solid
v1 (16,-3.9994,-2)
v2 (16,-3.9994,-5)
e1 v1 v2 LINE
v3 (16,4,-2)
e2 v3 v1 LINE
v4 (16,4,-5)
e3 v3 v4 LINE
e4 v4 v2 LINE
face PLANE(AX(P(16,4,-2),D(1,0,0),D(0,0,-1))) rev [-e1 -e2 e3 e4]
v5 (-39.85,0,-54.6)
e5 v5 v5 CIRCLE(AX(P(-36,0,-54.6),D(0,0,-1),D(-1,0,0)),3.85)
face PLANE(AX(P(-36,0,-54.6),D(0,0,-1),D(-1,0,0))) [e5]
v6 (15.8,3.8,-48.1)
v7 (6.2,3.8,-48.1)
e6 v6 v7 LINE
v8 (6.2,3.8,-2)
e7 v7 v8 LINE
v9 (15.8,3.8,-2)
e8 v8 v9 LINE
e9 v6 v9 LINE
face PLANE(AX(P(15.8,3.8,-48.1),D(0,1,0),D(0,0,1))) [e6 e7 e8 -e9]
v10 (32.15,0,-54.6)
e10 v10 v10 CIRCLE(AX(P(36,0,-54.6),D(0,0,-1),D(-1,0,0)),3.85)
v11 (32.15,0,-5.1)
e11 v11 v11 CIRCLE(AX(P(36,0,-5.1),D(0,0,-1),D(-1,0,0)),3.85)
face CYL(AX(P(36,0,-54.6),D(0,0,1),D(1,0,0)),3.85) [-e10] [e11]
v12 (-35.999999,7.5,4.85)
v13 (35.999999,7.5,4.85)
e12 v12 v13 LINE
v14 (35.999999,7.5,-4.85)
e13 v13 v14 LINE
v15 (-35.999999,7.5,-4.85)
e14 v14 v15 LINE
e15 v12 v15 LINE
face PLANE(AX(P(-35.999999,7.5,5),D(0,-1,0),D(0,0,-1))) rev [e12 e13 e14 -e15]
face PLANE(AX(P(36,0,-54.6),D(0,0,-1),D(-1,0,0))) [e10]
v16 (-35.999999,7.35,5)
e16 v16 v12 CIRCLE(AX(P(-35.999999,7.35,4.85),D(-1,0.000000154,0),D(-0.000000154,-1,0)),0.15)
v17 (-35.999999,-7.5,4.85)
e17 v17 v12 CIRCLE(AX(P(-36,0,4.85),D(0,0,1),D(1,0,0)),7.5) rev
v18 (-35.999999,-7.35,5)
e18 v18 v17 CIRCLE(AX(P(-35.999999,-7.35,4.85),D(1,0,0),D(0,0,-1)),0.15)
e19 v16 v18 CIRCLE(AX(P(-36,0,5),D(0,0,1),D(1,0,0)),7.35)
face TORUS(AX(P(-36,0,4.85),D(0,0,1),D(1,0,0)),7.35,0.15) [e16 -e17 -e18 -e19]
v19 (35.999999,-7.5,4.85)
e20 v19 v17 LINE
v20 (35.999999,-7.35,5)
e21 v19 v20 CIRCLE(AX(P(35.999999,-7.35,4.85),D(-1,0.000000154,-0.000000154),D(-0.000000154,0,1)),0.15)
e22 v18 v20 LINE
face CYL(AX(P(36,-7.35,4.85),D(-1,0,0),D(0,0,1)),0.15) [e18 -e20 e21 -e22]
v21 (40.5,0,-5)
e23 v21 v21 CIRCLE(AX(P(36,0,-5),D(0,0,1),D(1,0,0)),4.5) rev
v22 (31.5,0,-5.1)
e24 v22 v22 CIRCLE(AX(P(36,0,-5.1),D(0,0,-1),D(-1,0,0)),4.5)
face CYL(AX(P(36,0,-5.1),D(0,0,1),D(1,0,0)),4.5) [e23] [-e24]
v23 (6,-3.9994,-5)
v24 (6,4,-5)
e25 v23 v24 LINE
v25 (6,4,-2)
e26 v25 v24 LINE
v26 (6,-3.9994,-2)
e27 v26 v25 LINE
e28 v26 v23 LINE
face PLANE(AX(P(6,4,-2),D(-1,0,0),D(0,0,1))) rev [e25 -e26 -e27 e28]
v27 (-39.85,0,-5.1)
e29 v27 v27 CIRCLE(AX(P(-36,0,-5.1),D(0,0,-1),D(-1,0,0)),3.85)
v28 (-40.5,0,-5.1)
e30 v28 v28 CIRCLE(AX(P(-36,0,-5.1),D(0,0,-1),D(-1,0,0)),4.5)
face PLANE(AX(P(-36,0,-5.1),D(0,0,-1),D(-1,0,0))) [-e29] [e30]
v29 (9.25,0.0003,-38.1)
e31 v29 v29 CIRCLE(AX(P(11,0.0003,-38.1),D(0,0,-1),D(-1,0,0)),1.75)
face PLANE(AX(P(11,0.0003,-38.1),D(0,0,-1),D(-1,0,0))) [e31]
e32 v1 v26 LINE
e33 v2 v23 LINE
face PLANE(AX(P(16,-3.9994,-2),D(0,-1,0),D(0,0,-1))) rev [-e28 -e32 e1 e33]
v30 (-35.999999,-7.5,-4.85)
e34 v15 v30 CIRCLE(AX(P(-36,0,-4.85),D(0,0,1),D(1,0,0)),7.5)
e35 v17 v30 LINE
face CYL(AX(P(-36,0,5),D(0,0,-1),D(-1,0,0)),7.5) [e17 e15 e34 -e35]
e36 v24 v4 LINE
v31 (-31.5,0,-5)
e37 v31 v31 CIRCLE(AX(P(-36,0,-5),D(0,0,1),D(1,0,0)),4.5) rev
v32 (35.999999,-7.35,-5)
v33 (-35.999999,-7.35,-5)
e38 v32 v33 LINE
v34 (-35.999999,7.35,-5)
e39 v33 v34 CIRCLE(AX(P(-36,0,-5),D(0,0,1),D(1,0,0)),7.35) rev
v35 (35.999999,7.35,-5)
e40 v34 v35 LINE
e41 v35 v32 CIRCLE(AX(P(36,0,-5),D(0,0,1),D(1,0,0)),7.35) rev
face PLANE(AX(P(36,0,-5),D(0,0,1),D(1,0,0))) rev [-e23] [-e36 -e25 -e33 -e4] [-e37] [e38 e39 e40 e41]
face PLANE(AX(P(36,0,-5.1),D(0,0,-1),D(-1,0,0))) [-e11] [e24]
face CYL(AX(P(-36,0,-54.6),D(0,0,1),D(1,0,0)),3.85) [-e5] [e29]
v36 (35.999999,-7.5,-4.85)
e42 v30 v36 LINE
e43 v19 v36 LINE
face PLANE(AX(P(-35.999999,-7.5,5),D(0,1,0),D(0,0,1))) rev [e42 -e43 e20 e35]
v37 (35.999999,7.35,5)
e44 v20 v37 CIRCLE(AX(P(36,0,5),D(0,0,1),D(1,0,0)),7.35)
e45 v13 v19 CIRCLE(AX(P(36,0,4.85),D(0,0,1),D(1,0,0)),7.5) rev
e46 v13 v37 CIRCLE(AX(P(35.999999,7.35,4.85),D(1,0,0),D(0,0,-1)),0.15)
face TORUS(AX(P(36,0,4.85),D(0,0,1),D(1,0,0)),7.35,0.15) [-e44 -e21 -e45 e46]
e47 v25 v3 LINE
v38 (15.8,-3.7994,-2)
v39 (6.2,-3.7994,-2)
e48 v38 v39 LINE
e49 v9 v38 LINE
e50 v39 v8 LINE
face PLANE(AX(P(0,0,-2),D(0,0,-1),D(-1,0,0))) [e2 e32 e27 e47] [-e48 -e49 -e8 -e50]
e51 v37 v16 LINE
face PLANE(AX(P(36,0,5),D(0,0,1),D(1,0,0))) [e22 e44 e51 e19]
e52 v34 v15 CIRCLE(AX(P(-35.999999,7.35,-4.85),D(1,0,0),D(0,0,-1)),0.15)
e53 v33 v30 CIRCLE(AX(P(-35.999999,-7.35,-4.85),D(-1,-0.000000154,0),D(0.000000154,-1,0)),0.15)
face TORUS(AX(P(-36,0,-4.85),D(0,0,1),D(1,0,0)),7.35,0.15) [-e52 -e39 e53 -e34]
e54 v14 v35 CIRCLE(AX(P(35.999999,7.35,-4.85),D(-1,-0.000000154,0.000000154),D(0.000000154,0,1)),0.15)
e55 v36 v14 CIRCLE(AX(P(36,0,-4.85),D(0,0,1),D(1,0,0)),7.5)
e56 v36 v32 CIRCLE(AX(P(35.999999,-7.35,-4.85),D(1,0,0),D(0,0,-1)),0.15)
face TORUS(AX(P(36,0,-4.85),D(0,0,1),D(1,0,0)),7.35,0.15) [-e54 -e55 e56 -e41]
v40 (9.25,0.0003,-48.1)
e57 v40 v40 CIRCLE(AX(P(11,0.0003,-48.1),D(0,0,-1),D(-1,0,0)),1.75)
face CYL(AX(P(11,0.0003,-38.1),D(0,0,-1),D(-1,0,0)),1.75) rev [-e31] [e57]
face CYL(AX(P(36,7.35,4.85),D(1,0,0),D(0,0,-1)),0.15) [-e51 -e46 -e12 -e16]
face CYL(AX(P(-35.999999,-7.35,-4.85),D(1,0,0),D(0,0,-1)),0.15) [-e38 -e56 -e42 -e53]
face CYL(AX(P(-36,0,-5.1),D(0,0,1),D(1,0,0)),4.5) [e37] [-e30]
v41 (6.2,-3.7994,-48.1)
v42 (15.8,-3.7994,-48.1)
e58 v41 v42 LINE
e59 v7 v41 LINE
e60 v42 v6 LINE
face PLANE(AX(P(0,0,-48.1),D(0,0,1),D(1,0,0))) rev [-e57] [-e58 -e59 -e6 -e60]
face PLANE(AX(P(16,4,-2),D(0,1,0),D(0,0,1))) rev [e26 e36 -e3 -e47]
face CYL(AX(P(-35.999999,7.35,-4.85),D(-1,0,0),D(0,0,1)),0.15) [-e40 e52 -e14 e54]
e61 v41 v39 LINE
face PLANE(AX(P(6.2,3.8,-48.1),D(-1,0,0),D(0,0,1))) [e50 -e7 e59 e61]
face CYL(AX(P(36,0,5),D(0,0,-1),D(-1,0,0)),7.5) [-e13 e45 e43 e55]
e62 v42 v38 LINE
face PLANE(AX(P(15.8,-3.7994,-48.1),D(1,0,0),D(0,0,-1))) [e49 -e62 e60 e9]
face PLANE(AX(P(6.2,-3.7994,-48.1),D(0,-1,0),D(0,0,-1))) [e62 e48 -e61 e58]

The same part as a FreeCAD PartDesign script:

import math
import FreeCAD as App
import Part
import Sketcher


def edges_at(feature, points):
    """Names of the edges that pass closest to the given points."""
    edges = feature.Shape.Edges
    near = lambda p: min(range(len(edges)), key=lambda i: edges[i].distToShape(Part.Vertex(*p))[0])
    return sorted({f"Edge{near(p) + 1}" for p in points})


def add_polygon(sketch, points):
    """Adds a closed chain of lines whose ends are joined by coincident constraints."""
    first, n = sketch.GeometryCount, len(points)
    for a, b in zip(points, points[1:] + points[:1]):
        sketch.addGeometry(Part.LineSegment(App.Vector(*a, 0), App.Vector(*b, 0)), False)
    for i in range(n):
        sketch.addConstraint(Sketcher.Constraint("Coincident", first + i, 2, first + (i + 1) % n, 1))

doc = App.newDocument("Part")
params = doc.addObject("Spreadsheet::Sheet", "Params")
for row, (alias, value) in enumerate([
    ("sketch1_diameter", "8 mm"),
    ("sketch1_radius", "7.5 mm"),
    ("pad1_length", "10 mm"),
    ("fillet_radius", "0.15 mm"),
    ("sketch2_width", "10 mm"),
    ("pocket1_length", "3 mm"),
    ("sketch3_diameter", "3.5 mm"),
    ("sketch4_diameter", "8.3 mm"),
    ("pad2_length", "10 mm"),
    ("sketch5_diameter", "9 mm"),
    ("pad3_length", "0.1 mm"),
    ("sketch6_diameter", "7.7 mm"),
    ("pad4_length", "49.5 mm"),
    ("sketch7_width", "9.6 mm"),
    ("pad5_length", "53.1 mm"),
    ("sketch8_diameter", "3.5 mm"),
    ("pocket3_length", "10 mm"),
], start=1):
    params.set(f"A{row}", alias)
    params.set(f"B{row}", "=" + value)
    params.setAlias(f"B{row}", alias)

body = doc.addObject("PartDesign::Body", "Body")

# Sketch on XY plane
sketch1 = doc.addObject("Sketcher::SketchObject", "Sketch")
body.addObject(sketch1)
sketch1.AttachmentSupport = (doc.XY_Plane, [""])
sketch1.MapMode = "FlatFace"
sketch1.addGeometry(Part.LineSegment(App.Vector(36, 7.5, 0), App.Vector(-36, 7.5, 0)), False)
sketch1.addGeometry(Part.ArcOfCircle(Part.Circle(App.Vector(-36, 0, 0), App.Vector(0, 0, 1), 7.5), math.radians(90), math.radians(270)), False)
sketch1.addGeometry(Part.LineSegment(App.Vector(-36, -7.5, 0), App.Vector(36, -7.5, 0)), False)
sketch1.addGeometry(Part.ArcOfCircle(Part.Circle(App.Vector(36, 0, 0), App.Vector(0, 0, 1), 7.5), math.radians(-90), math.radians(90)), False)
sketch1.addGeometry(Part.Circle(App.Vector(36, 0, 0), App.Vector(0, 0, 1), 4), False)
sketch1.addGeometry(Part.Circle(App.Vector(-36, 0, 0), App.Vector(0, 0, 1), 4), False)
sketch1.addConstraint(Sketcher.Constraint("Tangent", 0, 2, 1, 1))
sketch1.addConstraint(Sketcher.Constraint("Tangent", 1, 2, 2, 1))
sketch1.addConstraint(Sketcher.Constraint("Tangent", 2, 2, 3, 1))
sketch1.addConstraint(Sketcher.Constraint("Tangent", 3, 2, 0, 1))
sketch1.addConstraint(Sketcher.Constraint("Horizontal", 0))
sketch1.addConstraint(Sketcher.Constraint("Horizontal", 2))
sketch1.addConstraint(Sketcher.Constraint("Coincident", 4, 3, 3, 3))
sketch1.addConstraint(Sketcher.Constraint("Coincident", 5, 3, 1, 3))
sketch1.addConstraint(Sketcher.Constraint("Equal", 4, 5))
sketch1.addConstraint(Sketcher.Constraint("Symmetric", 1, 3, 3, 3, -1, 1))
sketch1.addConstraint(Sketcher.Constraint("Diameter", 4, 8.0))
sketch1.addConstraint(Sketcher.Constraint("Radius", 1, 7.5))
sketch1.addConstraint(Sketcher.Constraint("DistanceX", 1, 3, -1, 1, 36.0))
sketch1.setExpression("Constraints[10]", "Params.sketch1_diameter")
sketch1.setExpression("Constraints[11]", "Params.sketch1_radius")
pad1 = doc.addObject("PartDesign::Pad", "Pad")
body.addObject(pad1)
pad1.Profile = sketch1
pad1.setExpression("Length", "Params.pad1_length")
pad1.Midplane = True
doc.recompute()

fillet = doc.addObject("PartDesign::Fillet", "Fillet")
body.addObject(fillet)
fillet.Base = (pad1, edges_at(pad1, [
    (-40, 0, -5),
    (-40, 0, 5),
    (-43.5, 0, 5),
    (32, 0, -5),
    (32, 0, 5),
    (0, -7.5, 5),
    (43.5, 0, 5),
    (0, -7.5, -5),
    (-43.5, 0, -5),
    (0, 7.5, -5),
    (43.5, 0, -5),
    (0, 7.5, 5),
]))
fillet.setExpression("Radius", "Params.fillet_radius")

# Sketch on XY plane
sketch2 = doc.addObject("Sketcher::SketchObject", "Sketch001")
body.addObject(sketch2)
sketch2.AttachmentSupport = (doc.XY_Plane, [""])
sketch2.MapMode = "FlatFace"
sketch2.AttachmentOffset = App.Placement(App.Vector(0, 0, -5), App.Rotation())
add_polygon(sketch2, [(16, 4), (16, -4), (6, -4), (6, 4)])  # lines 0-3
sketch2.addConstraint(Sketcher.Constraint("Vertical", 0))
sketch2.addConstraint(Sketcher.Constraint("Horizontal", 1))
sketch2.addConstraint(Sketcher.Constraint("Vertical", 2))
sketch2.addConstraint(Sketcher.Constraint("Horizontal", 3))
sketch2.addConstraint(Sketcher.Constraint("DistanceX", 1, 2, 1, 1, 10.0))
sketch2.addConstraint(Sketcher.Constraint("DistanceX", -1, 1, 0, 2, 16.0))
sketch2.addConstraint(Sketcher.Constraint("DistanceY", -1, 1, 2, 2, 4.0))
sketch2.addConstraint(Sketcher.Constraint("DistanceY", 0, 2, 0, 1, 7.9994))
sketch2.setExpression("Constraints[8]", "Params.sketch2_width")
pocket1 = doc.addObject("PartDesign::Pocket", "Pocket")
body.addObject(pocket1)
pocket1.Profile = sketch2
pocket1.setExpression("Length", "Params.pocket1_length")
pocket1.Reversed = True

# Sketch on XY plane
sketch3 = doc.addObject("Sketcher::SketchObject", "Sketch002")
body.addObject(sketch3)
sketch3.AttachmentSupport = (doc.XY_Plane, [""])
sketch3.MapMode = "FlatFace"
sketch3.AttachmentOffset = App.Placement(App.Vector(0, 0, -2), App.Rotation())
sketch3.addGeometry(Part.Circle(App.Vector(11, 0, 0), App.Vector(0, 0, 1), 1.8), False)
sketch3.addConstraint(Sketcher.Constraint("Diameter", 0, 3.5))
sketch3.addConstraint(Sketcher.Constraint("DistanceX", -1, 1, 0, 3, 11.0))
sketch3.addConstraint(Sketcher.Constraint("DistanceY", -1, 1, 0, 3, 0.0003))
sketch3.setExpression("Constraints[0]", "Params.sketch3_diameter")
pocket2 = doc.addObject("PartDesign::Pocket", "Pocket001")
body.addObject(pocket2)
pocket2.Profile = sketch3
pocket2.Type = "ThroughAll"
pocket2.Reversed = True

# Sketch on XY plane
sketch4 = doc.addObject("Sketcher::SketchObject", "Sketch003")
body.addObject(sketch4)
sketch4.AttachmentSupport = (doc.XY_Plane, [""])
sketch4.MapMode = "FlatFace"
sketch4.AttachmentOffset = App.Placement(App.Vector(0, 0, 5), App.Rotation())
sketch4.addGeometry(Part.Circle(App.Vector(36, 0, 0), App.Vector(0, 0, 1), 4.2), False)
sketch4.addGeometry(Part.Circle(App.Vector(-36, 0, 0), App.Vector(0, 0, 1), 4.2), False)
sketch4.addConstraint(Sketcher.Constraint("Equal", 0, 1))
sketch4.addConstraint(Sketcher.Constraint("Symmetric", 0, 3, 1, 3, -1, 1))
sketch4.addConstraint(Sketcher.Constraint("PointOnObject", 0, 3, -1))
sketch4.addConstraint(Sketcher.Constraint("Diameter", 0, 8.3))
sketch4.addConstraint(Sketcher.Constraint("DistanceX", -1, 1, 0, 3, 36.0))
sketch4.setExpression("Constraints[3]", "Params.sketch4_diameter")
pad2 = doc.addObject("PartDesign::Pad", "Pad001")
body.addObject(pad2)
pad2.Profile = sketch4
pad2.setExpression("Length", "Params.pad2_length")
pad2.Reversed = True

# Sketch on XY plane
sketch5 = doc.addObject("Sketcher::SketchObject", "Sketch004")
body.addObject(sketch5)
sketch5.AttachmentSupport = (doc.XY_Plane, [""])
sketch5.MapMode = "FlatFace"
sketch5.AttachmentOffset = App.Placement(App.Vector(0, 0, -5), App.Rotation())
sketch5.addGeometry(Part.Circle(App.Vector(-36, 0, 0), App.Vector(0, 0, 1), 4.5), False)
sketch5.addGeometry(Part.Circle(App.Vector(36, 0, 0), App.Vector(0, 0, 1), 4.5), False)
sketch5.addConstraint(Sketcher.Constraint("Equal", 0, 1))
sketch5.addConstraint(Sketcher.Constraint("Symmetric", 0, 3, 1, 3, -1, 1))
sketch5.addConstraint(Sketcher.Constraint("PointOnObject", 0, 3, -1))
sketch5.addConstraint(Sketcher.Constraint("Diameter", 0, 9.0))
sketch5.addConstraint(Sketcher.Constraint("DistanceX", 0, 3, -1, 1, 36.0))
sketch5.setExpression("Constraints[3]", "Params.sketch5_diameter")
pad3 = doc.addObject("PartDesign::Pad", "Pad002")
body.addObject(pad3)
pad3.Profile = sketch5
pad3.setExpression("Length", "Params.pad3_length")
pad3.Reversed = True

# Sketch on XY plane
sketch6 = doc.addObject("Sketcher::SketchObject", "Sketch005")
body.addObject(sketch6)
sketch6.AttachmentSupport = (doc.XY_Plane, [""])
sketch6.MapMode = "FlatFace"
sketch6.AttachmentOffset = App.Placement(App.Vector(0, 0, -5.1), App.Rotation())
sketch6.addGeometry(Part.Circle(App.Vector(36, 0, 0), App.Vector(0, 0, 1), 3.9), False)
sketch6.addGeometry(Part.Circle(App.Vector(-36, 0, 0), App.Vector(0, 0, 1), 3.9), False)
sketch6.addConstraint(Sketcher.Constraint("Equal", 0, 1))
sketch6.addConstraint(Sketcher.Constraint("Symmetric", 0, 3, 1, 3, -1, 1))
sketch6.addConstraint(Sketcher.Constraint("PointOnObject", 0, 3, -1))
sketch6.addConstraint(Sketcher.Constraint("Diameter", 0, 7.7))
sketch6.addConstraint(Sketcher.Constraint("DistanceX", -1, 1, 0, 3, 36.0))
sketch6.setExpression("Constraints[3]", "Params.sketch6_diameter")
pad4 = doc.addObject("PartDesign::Pad", "Pad003")
body.addObject(pad4)
pad4.Profile = sketch6
pad4.setExpression("Length", "Params.pad4_length")
pad4.Reversed = True

# Sketch on XY plane
sketch7 = doc.addObject("Sketcher::SketchObject", "Sketch006")
body.addObject(sketch7)
sketch7.AttachmentSupport = (doc.XY_Plane, [""])
sketch7.MapMode = "FlatFace"
sketch7.AttachmentOffset = App.Placement(App.Vector(0, 0, 5), App.Rotation())
add_polygon(sketch7, [(6, 4), (6, -4), (16, -4), (16, 4)])  # lines 0-3
sketch7.addConstraint(Sketcher.Constraint("Vertical", 0))
sketch7.addConstraint(Sketcher.Constraint("Horizontal", 1))
sketch7.addConstraint(Sketcher.Constraint("Vertical", 2))
sketch7.addConstraint(Sketcher.Constraint("Horizontal", 3))
sketch7.addConstraint(Sketcher.Constraint("DistanceX", 1, 1, 1, 2, 9.6))
sketch7.addConstraint(Sketcher.Constraint("DistanceX", -1, 1, 0, 2, 6.2))
sketch7.addConstraint(Sketcher.Constraint("DistanceY", -1, 1, 2, 2, 3.8))
sketch7.addConstraint(Sketcher.Constraint("DistanceY", 0, 2, 0, 1, 7.5994))
sketch7.setExpression("Constraints[8]", "Params.sketch7_width")
pad5 = doc.addObject("PartDesign::Pad", "Pad004")
body.addObject(pad5)
pad5.Profile = sketch7
pad5.setExpression("Length", "Params.pad5_length")
pad5.Reversed = True

# Sketch on XY plane
sketch8 = doc.addObject("Sketcher::SketchObject", "Sketch007")
body.addObject(sketch8)
sketch8.AttachmentSupport = (doc.XY_Plane, [""])
sketch8.MapMode = "FlatFace"
sketch8.AttachmentOffset = App.Placement(App.Vector(0, 0, -48.1), App.Rotation())
sketch8.addGeometry(Part.Circle(App.Vector(11, 0, 0), App.Vector(0, 0, 1), 1.8), False)
sketch8.addConstraint(Sketcher.Constraint("Diameter", 0, 3.5))
sketch8.addConstraint(Sketcher.Constraint("DistanceX", -1, 1, 0, 3, 11.0))
sketch8.addConstraint(Sketcher.Constraint("DistanceY", -1, 1, 0, 3, 0.0003))
sketch8.setExpression("Constraints[0]", "Params.sketch8_diameter")
pocket3 = doc.addObject("PartDesign::Pocket", "Pocket002")
body.addObject(pocket3)
pocket3.Profile = sketch8
pocket3.setExpression("Length", "Params.pocket3_length")
pocket3.Reversed = True

doc.recompute()
